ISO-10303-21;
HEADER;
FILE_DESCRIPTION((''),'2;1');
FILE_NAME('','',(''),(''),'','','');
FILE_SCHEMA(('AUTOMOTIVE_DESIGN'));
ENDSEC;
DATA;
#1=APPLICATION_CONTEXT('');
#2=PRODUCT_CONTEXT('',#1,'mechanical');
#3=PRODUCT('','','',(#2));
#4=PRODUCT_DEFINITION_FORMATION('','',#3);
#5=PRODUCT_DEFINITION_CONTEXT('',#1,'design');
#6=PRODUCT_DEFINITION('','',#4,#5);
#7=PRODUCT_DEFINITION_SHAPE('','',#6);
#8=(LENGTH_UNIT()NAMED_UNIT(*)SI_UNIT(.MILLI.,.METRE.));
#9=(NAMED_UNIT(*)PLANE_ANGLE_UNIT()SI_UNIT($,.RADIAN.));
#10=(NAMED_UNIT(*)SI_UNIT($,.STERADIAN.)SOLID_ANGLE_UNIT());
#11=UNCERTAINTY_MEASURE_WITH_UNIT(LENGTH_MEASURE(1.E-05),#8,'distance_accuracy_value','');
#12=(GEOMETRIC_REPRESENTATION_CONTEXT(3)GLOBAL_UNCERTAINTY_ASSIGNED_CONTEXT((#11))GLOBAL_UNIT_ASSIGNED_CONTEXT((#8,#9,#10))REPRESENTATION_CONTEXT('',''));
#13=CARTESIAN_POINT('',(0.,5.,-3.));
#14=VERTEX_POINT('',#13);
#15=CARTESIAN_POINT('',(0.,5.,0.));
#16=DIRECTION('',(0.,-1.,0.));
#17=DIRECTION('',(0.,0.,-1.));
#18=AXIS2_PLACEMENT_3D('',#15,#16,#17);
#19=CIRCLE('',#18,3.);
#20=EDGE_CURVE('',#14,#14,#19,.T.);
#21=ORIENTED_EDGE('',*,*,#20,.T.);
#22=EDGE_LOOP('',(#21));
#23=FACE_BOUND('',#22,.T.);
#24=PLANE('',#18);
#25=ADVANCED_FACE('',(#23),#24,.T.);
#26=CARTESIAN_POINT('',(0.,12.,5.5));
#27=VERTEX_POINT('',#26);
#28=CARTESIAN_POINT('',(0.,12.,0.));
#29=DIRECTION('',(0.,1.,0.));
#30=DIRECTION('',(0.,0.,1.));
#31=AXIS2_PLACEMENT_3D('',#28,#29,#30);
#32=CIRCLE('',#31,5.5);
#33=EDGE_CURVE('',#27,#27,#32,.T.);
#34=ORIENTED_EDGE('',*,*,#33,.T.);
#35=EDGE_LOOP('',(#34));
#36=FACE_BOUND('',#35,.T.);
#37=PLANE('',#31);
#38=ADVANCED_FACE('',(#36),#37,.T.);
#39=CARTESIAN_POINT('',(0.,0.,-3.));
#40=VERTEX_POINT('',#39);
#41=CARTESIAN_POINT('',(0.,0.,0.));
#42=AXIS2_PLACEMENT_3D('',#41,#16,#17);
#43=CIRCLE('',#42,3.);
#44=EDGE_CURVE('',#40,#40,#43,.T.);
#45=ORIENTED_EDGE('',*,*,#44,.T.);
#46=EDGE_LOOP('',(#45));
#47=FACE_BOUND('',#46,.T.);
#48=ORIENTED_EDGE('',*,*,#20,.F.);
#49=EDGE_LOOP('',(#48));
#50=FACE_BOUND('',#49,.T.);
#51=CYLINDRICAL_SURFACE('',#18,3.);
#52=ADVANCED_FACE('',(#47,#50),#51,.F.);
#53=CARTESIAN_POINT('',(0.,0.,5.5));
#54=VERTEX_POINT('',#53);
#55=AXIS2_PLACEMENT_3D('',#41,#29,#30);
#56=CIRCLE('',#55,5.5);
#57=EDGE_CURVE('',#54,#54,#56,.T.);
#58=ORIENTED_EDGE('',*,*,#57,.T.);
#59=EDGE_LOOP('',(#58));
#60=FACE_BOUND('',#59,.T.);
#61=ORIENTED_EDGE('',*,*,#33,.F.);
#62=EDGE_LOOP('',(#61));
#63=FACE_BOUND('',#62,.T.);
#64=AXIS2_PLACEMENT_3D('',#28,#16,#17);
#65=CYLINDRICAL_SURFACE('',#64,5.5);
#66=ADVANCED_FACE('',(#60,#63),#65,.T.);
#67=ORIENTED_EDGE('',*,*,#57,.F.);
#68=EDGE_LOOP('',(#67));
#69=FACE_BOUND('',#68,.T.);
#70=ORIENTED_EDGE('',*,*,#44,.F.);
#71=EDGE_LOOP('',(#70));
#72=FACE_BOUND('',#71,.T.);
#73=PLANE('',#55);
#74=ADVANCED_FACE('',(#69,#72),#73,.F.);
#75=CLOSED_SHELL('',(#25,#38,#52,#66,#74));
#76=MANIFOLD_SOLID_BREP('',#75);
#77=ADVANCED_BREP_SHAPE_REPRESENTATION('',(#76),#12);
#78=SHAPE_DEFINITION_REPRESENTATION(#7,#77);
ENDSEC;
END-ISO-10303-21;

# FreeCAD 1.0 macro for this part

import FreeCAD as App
import Part
import Sketcher
Q = App.Units.Quantity

doc = App.newDocument("Part")
body = doc.addObject("PartDesign::Body", "Body")

# Sketch on XZ plane
sketch1 = body.newObject("Sketcher::SketchObject", "Sketch")
sketch1.AttachmentSupport = (doc.getObject("XZ_Plane"), [""])
sketch1.MapMode = "FlatFace"
sketch1.addGeometry(Part.Circle(App.Vector(0, 0, 0), App.Vector(0, 0, 1), 5.5), False)
sketch1.addConstraint([
    Sketcher.Constraint("Coincident", 0, 3, -1, 1),
    Sketcher.Constraint("Diameter", 0, Q("11 mm")),
])
pad1 = body.newObject("PartDesign::Pad", "Pad")
pad1.Profile = sketch1
pad1.Length = 12
pad1.Reversed = True

# Sketch on XZ plane
sketch2 = body.newObject("Sketcher::SketchObject", "Sketch001")
sketch2.AttachmentSupport = (doc.getObject("XZ_Plane"), [""])
sketch2.MapMode = "FlatFace"
sketch2.addGeometry(Part.Circle(App.Vector(0, 0, 0), App.Vector(0, 0, 1), 3), False)
sketch2.addConstraint([
    Sketcher.Constraint("Coincident", 0, 3, -1, 1),
    Sketcher.Constraint("Diameter", 0, Q("6 mm")),
])
pocket1 = body.newObject("PartDesign::Pocket", "Pocket")
pocket1.Profile = sketch2
pocket1.Length = 5

doc.recompute()
